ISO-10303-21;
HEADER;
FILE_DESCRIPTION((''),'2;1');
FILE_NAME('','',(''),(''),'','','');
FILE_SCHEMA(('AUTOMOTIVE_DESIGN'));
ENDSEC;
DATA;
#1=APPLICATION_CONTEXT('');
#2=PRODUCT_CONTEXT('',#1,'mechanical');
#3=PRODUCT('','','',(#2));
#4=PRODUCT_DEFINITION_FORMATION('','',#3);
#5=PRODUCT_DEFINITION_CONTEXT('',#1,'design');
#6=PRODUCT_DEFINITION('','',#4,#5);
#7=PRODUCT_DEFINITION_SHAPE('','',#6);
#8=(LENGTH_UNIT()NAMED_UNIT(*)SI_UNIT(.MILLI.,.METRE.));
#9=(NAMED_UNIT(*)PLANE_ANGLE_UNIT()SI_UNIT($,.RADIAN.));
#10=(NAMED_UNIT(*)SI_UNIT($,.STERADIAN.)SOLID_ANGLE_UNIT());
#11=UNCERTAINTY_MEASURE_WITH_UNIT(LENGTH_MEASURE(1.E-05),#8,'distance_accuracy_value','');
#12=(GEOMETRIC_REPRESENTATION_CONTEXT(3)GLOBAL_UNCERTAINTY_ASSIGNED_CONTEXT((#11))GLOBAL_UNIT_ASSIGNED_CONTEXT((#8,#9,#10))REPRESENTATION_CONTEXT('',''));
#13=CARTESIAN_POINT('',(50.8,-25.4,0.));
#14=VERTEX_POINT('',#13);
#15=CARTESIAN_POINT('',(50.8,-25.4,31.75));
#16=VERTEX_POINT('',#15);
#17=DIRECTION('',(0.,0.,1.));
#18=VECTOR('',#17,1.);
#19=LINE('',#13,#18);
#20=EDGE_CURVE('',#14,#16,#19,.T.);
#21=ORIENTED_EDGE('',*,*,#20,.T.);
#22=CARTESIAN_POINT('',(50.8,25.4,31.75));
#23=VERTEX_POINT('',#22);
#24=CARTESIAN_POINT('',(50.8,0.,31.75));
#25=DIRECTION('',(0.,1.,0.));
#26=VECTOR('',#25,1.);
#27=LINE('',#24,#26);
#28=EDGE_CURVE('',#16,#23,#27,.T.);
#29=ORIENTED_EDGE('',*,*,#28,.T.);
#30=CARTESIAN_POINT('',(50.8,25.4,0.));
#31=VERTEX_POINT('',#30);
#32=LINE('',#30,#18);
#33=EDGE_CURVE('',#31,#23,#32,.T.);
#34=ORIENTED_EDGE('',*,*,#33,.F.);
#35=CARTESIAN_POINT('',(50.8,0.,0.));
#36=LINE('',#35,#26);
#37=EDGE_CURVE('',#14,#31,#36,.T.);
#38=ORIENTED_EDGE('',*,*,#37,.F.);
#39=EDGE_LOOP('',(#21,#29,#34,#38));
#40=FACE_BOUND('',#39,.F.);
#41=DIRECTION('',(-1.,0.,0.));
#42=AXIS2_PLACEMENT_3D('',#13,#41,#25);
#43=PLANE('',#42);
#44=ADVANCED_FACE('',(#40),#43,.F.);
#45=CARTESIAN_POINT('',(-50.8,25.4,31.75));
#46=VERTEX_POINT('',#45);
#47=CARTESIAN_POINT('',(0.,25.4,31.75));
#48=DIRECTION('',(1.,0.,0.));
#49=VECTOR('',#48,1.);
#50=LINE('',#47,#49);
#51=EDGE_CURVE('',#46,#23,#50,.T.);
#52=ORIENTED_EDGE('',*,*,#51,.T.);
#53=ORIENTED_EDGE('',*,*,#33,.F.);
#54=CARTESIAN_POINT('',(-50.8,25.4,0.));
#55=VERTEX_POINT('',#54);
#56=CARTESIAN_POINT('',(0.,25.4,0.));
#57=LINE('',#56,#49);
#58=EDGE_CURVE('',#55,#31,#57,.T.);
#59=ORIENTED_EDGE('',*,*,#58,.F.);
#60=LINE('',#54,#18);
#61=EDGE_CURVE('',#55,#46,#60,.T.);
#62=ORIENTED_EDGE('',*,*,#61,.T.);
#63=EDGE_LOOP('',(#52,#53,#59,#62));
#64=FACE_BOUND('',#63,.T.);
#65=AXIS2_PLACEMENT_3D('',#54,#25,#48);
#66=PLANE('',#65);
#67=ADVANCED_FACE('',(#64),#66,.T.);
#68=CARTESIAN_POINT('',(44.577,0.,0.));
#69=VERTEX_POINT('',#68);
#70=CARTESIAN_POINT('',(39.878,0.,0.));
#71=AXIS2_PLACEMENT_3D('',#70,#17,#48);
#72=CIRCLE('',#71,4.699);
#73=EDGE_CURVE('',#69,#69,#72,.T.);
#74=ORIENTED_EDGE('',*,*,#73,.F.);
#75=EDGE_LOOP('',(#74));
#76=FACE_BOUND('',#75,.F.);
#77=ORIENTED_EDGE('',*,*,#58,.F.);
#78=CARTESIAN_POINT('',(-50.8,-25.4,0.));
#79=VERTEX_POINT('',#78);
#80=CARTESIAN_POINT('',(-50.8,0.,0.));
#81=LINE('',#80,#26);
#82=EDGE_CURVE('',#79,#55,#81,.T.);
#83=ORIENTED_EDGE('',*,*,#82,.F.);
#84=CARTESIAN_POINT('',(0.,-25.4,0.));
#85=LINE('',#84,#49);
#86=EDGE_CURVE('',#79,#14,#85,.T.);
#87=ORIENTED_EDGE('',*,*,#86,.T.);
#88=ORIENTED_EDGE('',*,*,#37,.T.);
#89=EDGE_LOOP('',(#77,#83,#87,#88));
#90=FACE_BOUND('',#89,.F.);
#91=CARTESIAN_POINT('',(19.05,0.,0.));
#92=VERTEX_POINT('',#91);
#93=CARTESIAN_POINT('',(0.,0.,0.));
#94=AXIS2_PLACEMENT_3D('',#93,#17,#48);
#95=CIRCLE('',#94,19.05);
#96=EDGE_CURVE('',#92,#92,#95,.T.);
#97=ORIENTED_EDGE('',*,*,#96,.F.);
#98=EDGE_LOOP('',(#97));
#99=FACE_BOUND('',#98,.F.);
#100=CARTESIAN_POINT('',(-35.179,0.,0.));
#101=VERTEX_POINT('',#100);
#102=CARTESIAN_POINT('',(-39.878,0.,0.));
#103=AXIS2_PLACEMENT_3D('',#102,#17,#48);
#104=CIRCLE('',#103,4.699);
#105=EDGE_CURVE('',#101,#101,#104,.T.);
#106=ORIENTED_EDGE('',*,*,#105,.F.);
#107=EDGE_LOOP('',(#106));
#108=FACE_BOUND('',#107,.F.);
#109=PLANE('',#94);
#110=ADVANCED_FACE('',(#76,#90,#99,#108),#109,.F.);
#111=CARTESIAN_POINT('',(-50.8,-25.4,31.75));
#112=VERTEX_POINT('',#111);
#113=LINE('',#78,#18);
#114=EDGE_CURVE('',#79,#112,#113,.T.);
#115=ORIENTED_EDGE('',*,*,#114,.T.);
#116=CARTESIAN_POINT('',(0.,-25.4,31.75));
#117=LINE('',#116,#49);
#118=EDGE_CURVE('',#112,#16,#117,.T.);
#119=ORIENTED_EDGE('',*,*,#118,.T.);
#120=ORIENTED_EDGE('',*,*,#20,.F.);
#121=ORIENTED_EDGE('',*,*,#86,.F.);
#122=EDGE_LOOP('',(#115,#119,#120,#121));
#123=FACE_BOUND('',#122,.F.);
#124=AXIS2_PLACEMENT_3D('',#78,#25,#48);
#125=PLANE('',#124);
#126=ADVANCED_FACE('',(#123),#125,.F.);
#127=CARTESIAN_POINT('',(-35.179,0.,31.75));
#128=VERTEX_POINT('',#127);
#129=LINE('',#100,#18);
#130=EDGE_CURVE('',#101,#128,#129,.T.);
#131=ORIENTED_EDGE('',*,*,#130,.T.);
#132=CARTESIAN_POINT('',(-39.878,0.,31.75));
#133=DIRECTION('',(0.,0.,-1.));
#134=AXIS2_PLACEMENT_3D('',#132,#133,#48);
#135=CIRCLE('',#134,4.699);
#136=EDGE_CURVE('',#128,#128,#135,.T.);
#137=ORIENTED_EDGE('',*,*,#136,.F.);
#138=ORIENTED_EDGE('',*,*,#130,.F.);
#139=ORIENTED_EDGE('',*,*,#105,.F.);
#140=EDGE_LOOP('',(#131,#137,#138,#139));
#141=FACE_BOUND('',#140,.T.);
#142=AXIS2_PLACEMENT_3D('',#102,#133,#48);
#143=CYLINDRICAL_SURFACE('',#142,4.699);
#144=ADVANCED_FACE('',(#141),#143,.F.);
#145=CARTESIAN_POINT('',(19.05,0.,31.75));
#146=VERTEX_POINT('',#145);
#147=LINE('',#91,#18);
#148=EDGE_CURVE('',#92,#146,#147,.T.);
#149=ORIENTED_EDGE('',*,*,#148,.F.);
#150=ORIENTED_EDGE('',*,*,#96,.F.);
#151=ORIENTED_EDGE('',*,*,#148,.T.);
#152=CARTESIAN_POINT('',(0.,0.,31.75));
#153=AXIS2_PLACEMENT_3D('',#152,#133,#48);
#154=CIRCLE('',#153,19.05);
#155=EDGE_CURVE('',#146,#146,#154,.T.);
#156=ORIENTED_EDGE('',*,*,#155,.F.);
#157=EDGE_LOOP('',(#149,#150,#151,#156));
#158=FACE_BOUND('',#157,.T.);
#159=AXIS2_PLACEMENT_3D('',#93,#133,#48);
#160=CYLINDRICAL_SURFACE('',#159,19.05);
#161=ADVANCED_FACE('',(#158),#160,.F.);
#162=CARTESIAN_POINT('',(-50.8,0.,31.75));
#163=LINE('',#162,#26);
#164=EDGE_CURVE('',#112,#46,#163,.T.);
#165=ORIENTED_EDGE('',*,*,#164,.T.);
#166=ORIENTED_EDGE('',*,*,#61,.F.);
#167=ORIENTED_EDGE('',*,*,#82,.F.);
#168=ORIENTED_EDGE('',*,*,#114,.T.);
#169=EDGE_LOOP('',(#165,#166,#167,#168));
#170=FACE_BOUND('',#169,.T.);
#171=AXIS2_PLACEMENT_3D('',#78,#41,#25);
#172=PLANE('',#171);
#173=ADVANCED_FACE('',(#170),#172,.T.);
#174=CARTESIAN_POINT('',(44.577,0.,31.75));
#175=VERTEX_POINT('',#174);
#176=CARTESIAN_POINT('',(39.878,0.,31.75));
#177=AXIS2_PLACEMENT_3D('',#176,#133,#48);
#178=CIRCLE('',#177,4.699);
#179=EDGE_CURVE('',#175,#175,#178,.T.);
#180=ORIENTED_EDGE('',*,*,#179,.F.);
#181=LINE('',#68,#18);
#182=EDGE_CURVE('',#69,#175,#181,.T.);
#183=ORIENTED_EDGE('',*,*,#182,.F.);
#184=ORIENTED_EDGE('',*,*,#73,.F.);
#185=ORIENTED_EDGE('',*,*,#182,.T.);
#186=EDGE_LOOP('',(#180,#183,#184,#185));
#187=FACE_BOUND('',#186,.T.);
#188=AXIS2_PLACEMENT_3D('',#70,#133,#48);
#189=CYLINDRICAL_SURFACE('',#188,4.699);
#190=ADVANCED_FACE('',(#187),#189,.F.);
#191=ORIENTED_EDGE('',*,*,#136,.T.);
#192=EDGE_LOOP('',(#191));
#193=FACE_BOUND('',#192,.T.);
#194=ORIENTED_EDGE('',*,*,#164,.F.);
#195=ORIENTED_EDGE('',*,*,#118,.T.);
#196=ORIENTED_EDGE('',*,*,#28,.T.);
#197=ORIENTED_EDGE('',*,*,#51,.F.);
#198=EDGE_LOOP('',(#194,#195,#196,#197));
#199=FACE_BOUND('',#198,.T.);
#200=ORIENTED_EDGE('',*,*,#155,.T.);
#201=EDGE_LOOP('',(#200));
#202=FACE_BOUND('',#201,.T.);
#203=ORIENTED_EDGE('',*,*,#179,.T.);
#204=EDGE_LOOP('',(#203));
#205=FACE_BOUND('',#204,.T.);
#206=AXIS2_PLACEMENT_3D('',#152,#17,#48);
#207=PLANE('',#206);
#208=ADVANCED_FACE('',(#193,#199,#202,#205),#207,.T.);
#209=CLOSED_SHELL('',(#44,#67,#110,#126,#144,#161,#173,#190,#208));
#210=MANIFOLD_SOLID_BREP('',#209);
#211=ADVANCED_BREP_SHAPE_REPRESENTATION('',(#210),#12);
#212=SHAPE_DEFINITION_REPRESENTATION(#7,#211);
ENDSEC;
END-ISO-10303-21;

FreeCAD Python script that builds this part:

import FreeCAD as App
import Part
import Sketcher
Q = App.Units.Quantity


def add_polygon(sketch, points):
    """Adds a closed chain of lines whose ends are joined by coincident constraints."""
    first, n = sketch.GeometryCount, len(points)
    for a, b in zip(points, points[1:] + points[:1]):
        sketch.addGeometry(Part.LineSegment(App.Vector(*a, 0), App.Vector(*b, 0)), False)
    for i in range(n):
        sketch.addConstraint(Sketcher.Constraint("Coincident", first + i, 2, first + (i + 1) % n, 1))

doc = App.newDocument("Part")
params = doc.addObject("Spreadsheet::Sheet", "Params")
for row, (alias, value) in enumerate([
    ("sketch1_width", "4 in"),
    ("sketch1_height", "2 in"),
    ("pad1_length", "1.25 in"),
    ("sketch2_diameter", "1.5 in"),
    ("sketch3_diameter", "0.37 in"),
], start=1):
    params.set(f"A{row}", alias)
    params.set(f"B{row}", "=" + value)
    params.setAlias(f"B{row}", alias)

body = doc.addObject("PartDesign::Body", "Body")

sketch1 = body.newObject("Sketcher::SketchObject", "Sketch")
sketch1.AttachmentSupport = (doc.getObject("XY_Plane"), [""])
sketch1.MapMode = "FlatFace"
add_polygon(sketch1, [(-51, 25), (-51, -25), (51, -25), (51, 25)])
sketch1.addConstraint([
    Sketcher.Constraint("Vertical", 0),
    Sketcher.Constraint("Horizontal", 1),
    Sketcher.Constraint("Vertical", 2),
    Sketcher.Constraint("Horizontal", 3),
    Sketcher.Constraint("Symmetric", 0, 2, 2, 2, -1, 1),
    Sketcher.Constraint("DistanceX", 1, 1, 1, 2, Q("4 in")),
    Sketcher.Constraint("DistanceY", 0, 2, 0, 1, Q("2 in")),
])
sketch1.setExpression("Constraints[9]", "Params.sketch1_width")
sketch1.setExpression("Constraints[10]", "Params.sketch1_height")
pad1 = body.newObject("PartDesign::Pad", "Pad")
pad1.Profile = sketch1
pad1.setExpression("Length", "Params.pad1_length")

sketch2 = body.newObject("Sketcher::SketchObject", "Sketch001")
sketch2.AttachmentSupport = (doc.getObject("XY_Plane"), [""])
sketch2.MapMode = "FlatFace"
sketch2.addGeometry(Part.Circle(App.Vector(0, 0, 0), App.Vector(0, 0, 1), 19), False)
sketch2.addConstraint([
    Sketcher.Constraint("Coincident", 0, 3, -1, 1),
    Sketcher.Constraint("Diameter", 0, Q("1.5 in")),
])
sketch2.setExpression("Constraints[1]", "Params.sketch2_diameter")
pocket1 = body.newObject("PartDesign::Pocket", "Pocket")
pocket1.Profile = sketch2
pocket1.Type = "ThroughAll"
pocket1.Reversed = True

sketch3 = body.newObject("Sketcher::SketchObject", "Sketch002")
sketch3.AttachmentSupport = (doc.getObject("XY_Plane"), [""])
sketch3.MapMode = "FlatFace"
sketch3.addGeometry([
    Part.Circle(App.Vector(-39.9, 0, 0), App.Vector(0, 0, 1), 4.7),
    Part.Circle(App.Vector(39.9, 0, 0), App.Vector(0, 0, 1), 4.7),
], False)
sketch3.addConstraint([
    Sketcher.Constraint("Equal", 0, 1),
    Sketcher.Constraint("Symmetric", 0, 3, 1, 3, -1, 1),
    Sketcher.Constraint("PointOnObject", 0, 3, -1),
    Sketcher.Constraint("Diameter", 0, Q("0.37 in")),
    Sketcher.Constraint("DistanceX", 0, 3, -1, 1, Q("1.57 in")),
])
sketch3.setExpression("Constraints[3]", "Params.sketch3_diameter")
pocket2 = body.newObject("PartDesign::Pocket", "Pocket001")
pocket2.Profile = sketch3
pocket2.Type = "ThroughAll"
pocket2.Reversed = True

doc.recompute()
